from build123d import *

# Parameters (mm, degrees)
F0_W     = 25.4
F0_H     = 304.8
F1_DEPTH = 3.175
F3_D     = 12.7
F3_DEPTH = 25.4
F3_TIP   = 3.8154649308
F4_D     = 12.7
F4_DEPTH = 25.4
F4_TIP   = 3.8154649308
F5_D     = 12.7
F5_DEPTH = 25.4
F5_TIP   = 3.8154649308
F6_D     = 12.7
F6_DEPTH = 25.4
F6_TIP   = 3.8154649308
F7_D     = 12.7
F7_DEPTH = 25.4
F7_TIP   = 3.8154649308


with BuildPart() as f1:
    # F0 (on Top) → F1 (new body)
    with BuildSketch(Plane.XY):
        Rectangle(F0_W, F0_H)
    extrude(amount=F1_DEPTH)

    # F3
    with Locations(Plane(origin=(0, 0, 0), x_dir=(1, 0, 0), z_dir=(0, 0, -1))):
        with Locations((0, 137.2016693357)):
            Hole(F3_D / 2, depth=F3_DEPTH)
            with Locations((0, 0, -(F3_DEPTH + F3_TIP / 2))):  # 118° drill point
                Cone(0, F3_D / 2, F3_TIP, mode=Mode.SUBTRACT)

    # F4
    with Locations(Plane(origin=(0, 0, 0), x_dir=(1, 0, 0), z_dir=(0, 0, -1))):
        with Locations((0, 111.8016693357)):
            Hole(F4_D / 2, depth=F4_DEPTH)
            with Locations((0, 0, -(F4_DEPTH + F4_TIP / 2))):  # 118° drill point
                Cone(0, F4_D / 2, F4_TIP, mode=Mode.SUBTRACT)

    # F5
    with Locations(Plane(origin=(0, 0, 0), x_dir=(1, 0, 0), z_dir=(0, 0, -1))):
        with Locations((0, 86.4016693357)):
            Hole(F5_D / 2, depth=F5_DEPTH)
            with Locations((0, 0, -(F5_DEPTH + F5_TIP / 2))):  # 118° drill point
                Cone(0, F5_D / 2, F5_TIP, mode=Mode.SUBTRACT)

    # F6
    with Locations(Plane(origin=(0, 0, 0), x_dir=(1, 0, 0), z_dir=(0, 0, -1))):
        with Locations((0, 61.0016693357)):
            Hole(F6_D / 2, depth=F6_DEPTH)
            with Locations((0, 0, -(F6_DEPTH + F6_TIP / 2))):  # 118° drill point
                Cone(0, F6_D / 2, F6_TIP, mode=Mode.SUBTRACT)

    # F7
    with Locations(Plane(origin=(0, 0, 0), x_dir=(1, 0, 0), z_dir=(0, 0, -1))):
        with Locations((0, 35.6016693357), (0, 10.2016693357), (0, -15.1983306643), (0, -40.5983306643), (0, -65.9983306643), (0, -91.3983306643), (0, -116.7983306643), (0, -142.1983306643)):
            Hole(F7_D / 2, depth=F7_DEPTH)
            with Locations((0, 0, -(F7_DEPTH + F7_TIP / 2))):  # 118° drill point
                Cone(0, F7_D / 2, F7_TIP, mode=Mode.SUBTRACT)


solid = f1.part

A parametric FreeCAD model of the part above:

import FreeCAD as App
import Part
import Sketcher

V = App.Vector
Q = App.Units.Quantity

doc = App.newDocument("Part")
body = doc.addObject("PartDesign::Body", "Body")

# Sketch on XY plane
sketch1 = doc.addObject("Sketcher::SketchObject", "Sketch")
body.addObject(sketch1)
sketch1.AttachmentSupport = (doc.XY_Plane, [""])
sketch1.MapMode = "FlatFace"
sketch1.addGeometry(Part.LineSegment(V(-13, 152, 0), V(-13, -152, 0)), False)
sketch1.addGeometry(Part.LineSegment(V(-13, -152, 0), V(13, -152, 0)), False)
sketch1.addGeometry(Part.LineSegment(V(13, -152, 0), V(13, 152, 0)), False)
sketch1.addGeometry(Part.LineSegment(V(13, 152, 0), V(-13, 152, 0)), False)
sketch1.addConstraint(Sketcher.Constraint("Coincident", 0, 2, 1, 1))
sketch1.addConstraint(Sketcher.Constraint("Coincident", 1, 2, 2, 1))
sketch1.addConstraint(Sketcher.Constraint("Coincident", 2, 2, 3, 1))
sketch1.addConstraint(Sketcher.Constraint("Coincident", 3, 2, 0, 1))
sketch1.addConstraint(Sketcher.Constraint("Vertical", 0))
sketch1.addConstraint(Sketcher.Constraint("Horizontal", 1))
sketch1.addConstraint(Sketcher.Constraint("Vertical", 2))
sketch1.addConstraint(Sketcher.Constraint("Horizontal", 3))
sketch1.addConstraint(Sketcher.Constraint("Symmetric", 0, 2, 2, 2, -1, 1))
sketch1.addConstraint(Sketcher.Constraint("DistanceX", 1, 1, 1, 2, Q("1 in")))
sketch1.addConstraint(Sketcher.Constraint("DistanceY", 0, 2, 0, 1, Q("12 in")))
pad1 = doc.addObject("PartDesign::Pad", "Pad")
body.addObject(pad1)
pad1.Profile = sketch1
pad1.Length = Q("0.125 in")

# Sketch on XY plane
sketch2 = doc.addObject("Sketcher::SketchObject", "Sketch001")
body.addObject(sketch2)
sketch2.AttachmentSupport = (doc.XY_Plane, [""])
sketch2.MapMode = "FlatFace"
sketch2.addGeometry(Part.Circle(V(0, -137, 0), V(0, 0, 1), 6), False)
sketch2.addConstraint(Sketcher.Constraint("PointOnObject", 0, 3, -2))
sketch2.addConstraint(Sketcher.Constraint("Diameter", 0, Q("0.5 in")))
sketch2.addConstraint(Sketcher.Constraint("DistanceY", 0, 3, -1, 1, 137.201669))
doc.recompute()
hole = doc.addObject("PartDesign::Hole", "Hole")
body.addObject(hole)
hole.Profile = sketch2
hole.ThreadType = "None"
hole.Diameter = Q("0.5 in")
hole.DepthType = "Dimension"
hole.Depth = Q("1 in")
hole.DrillPoint = "Angled"
hole.DrillPointAngle = 118
hole.Reversed = True

# Sketch on XY plane
sketch3 = doc.addObject("Sketcher::SketchObject", "Sketch002")
body.addObject(sketch3)
sketch3.AttachmentSupport = (doc.XY_Plane, [""])
sketch3.MapMode = "FlatFace"
sketch3.addGeometry(Part.Circle(V(0, -112, 0), V(0, 0, 1), 6), False)
sketch3.addConstraint(Sketcher.Constraint("PointOnObject", 0, 3, -2))
sketch3.addConstraint(Sketcher.Constraint("Diameter", 0, Q("0.5 in")))
sketch3.addConstraint(Sketcher.Constraint("DistanceY", 0, 3, -1, 1, 111.801669))
doc.recompute()
hole2 = doc.addObject("PartDesign::Hole", "Hole001")
body.addObject(hole2)
hole2.Profile = sketch3
hole2.ThreadType = "None"
hole2.Diameter = Q("0.5 in")
hole2.DepthType = "Dimension"
hole2.Depth = Q("1 in")
hole2.DrillPoint = "Angled"
hole2.DrillPointAngle = 118
hole2.Reversed = True

# Sketch on XY plane
sketch4 = doc.addObject("Sketcher::SketchObject", "Sketch003")
body.addObject(sketch4)
sketch4.AttachmentSupport = (doc.XY_Plane, [""])
sketch4.MapMode = "FlatFace"
sketch4.addGeometry(Part.Circle(V(0, -86, 0), V(0, 0, 1), 6), False)
sketch4.addConstraint(Sketcher.Constraint("PointOnObject", 0, 3, -2))
sketch4.addConstraint(Sketcher.Constraint("Diameter", 0, Q("0.5 in")))
sketch4.addConstraint(Sketcher.Constraint("DistanceY", 0, 3, -1, 1, 86.401669))
doc.recompute()
hole3 = doc.addObject("PartDesign::Hole", "Hole002")
body.addObject(hole3)
hole3.Profile = sketch4
hole3.ThreadType = "None"
hole3.Diameter = Q("0.5 in")
hole3.DepthType = "Dimension"
hole3.Depth = Q("1 in")
hole3.DrillPoint = "Angled"
hole3.DrillPointAngle = 118
hole3.Reversed = True

# Sketch on XY plane
sketch5 = doc.addObject("Sketcher::SketchObject", "Sketch004")
body.addObject(sketch5)
sketch5.AttachmentSupport = (doc.XY_Plane, [""])
sketch5.MapMode = "FlatFace"
sketch5.addGeometry(Part.Circle(V(0, -61, 0), V(0, 0, 1), 6), False)
sketch5.addConstraint(Sketcher.Constraint("PointOnObject", 0, 3, -2))
sketch5.addConstraint(Sketcher.Constraint("Diameter", 0, Q("0.5 in")))
sketch5.addConstraint(Sketcher.Constraint("DistanceY", 0, 3, -1, 1, 61.001669))
doc.recompute()
hole4 = doc.addObject("PartDesign::Hole", "Hole003")
body.addObject(hole4)
hole4.Profile = sketch5
hole4.ThreadType = "None"
hole4.Diameter = Q("0.5 in")
hole4.DepthType = "Dimension"
hole4.Depth = Q("1 in")
hole4.DrillPoint = "Angled"
hole4.DrillPointAngle = 118
hole4.Reversed = True

# Sketch on XY plane
sketch6 = doc.addObject("Sketcher::SketchObject", "Sketch005")
body.addObject(sketch6)
sketch6.AttachmentSupport = (doc.XY_Plane, [""])
sketch6.MapMode = "FlatFace"
sketch6.addGeometry(Part.Circle(V(0, -36, 0), V(0, 0, 1), 6), False)
sketch6.addGeometry(Part.Circle(V(0, -10, 0), V(0, 0, 1), 6), False)
sketch6.addGeometry(Part.Circle(V(0, 15, 0), V(0, 0, 1), 6), False)
sketch6.addGeometry(Part.Circle(V(0, 41, 0), V(0, 0, 1), 6), False)
sketch6.addGeometry(Part.Circle(V(0, 66, 0), V(0, 0, 1), 6), False)
sketch6.addGeometry(Part.Circle(V(0, 91, 0), V(0, 0, 1), 6), False)
sketch6.addGeometry(Part.Circle(V(0, 117, 0), V(0, 0, 1), 6), False)
sketch6.addGeometry(Part.Circle(V(0, 142, 0), V(0, 0, 1), 6), False)
sketch6.addConstraint(Sketcher.Constraint("Equal", 0, 1))
sketch6.addConstraint(Sketcher.Constraint("Equal", 1, 2))
sketch6.addConstraint(Sketcher.Constraint("Equal", 2, 3))
sketch6.addConstraint(Sketcher.Constraint("Equal", 3, 4))
sketch6.addConstraint(Sketcher.Constraint("Equal", 4, 5))
sketch6.addConstraint(Sketcher.Constraint("Equal", 5, 6))
sketch6.addConstraint(Sketcher.Constraint("Equal", 6, 7))
sketch6.addConstraint(Sketcher.Constraint("PointOnObject", 0, 3, -2))
sketch6.addConstraint(Sketcher.Constraint("PointOnObject", 1, 3, -2))
sketch6.addConstraint(Sketcher.Constraint("PointOnObject", 2, 3, -2))
sketch6.addConstraint(Sketcher.Constraint("PointOnObject", 3, 3, -2))
sketch6.addConstraint(Sketcher.Constraint("PointOnObject", 4, 3, -2))
sketch6.addConstraint(Sketcher.Constraint("PointOnObject", 5, 3, -2))
sketch6.addConstraint(Sketcher.Constraint("PointOnObject", 6, 3, -2))
sketch6.addConstraint(Sketcher.Constraint("PointOnObject", 7, 3, -2))
sketch6.addConstraint(Sketcher.Constraint("Diameter", 0, Q("0.5 in")))
sketch6.addConstraint(Sketcher.Constraint("DistanceY", 0, 3, 1, 3, Q("1 in")))
sketch6.addConstraint(Sketcher.Constraint("DistanceY", 1, 3, 2, 3, Q("1 in")))
sketch6.addConstraint(Sketcher.Constraint("DistanceY", 2, 3, 3, 3, Q("1 in")))
sketch6.addConstraint(Sketcher.Constraint("DistanceY", 3, 3, 4, 3, Q("1 in")))
sketch6.addConstraint(Sketcher.Constraint("DistanceY", 4, 3, 5, 3, Q("1 in")))
sketch6.addConstraint(Sketcher.Constraint("DistanceY", 5, 3, 6, 3, Q("1 in")))
sketch6.addConstraint(Sketcher.Constraint("DistanceY", 6, 3, 7, 3, Q("1 in")))
sketch6.addConstraint(Sketcher.Constraint("DistanceY", 0, 3, -1, 1, 35.601669))
doc.recompute()
hole5 = doc.addObject("PartDesign::Hole", "Hole004")
body.addObject(hole5)
hole5.Profile = sketch6
hole5.ThreadType = "None"
hole5.Diameter = Q("0.5 in")
hole5.DepthType = "Dimension"
hole5.Depth = Q("1 in")
hole5.DrillPoint = "Angled"
hole5.DrillPointAngle = 118
hole5.Reversed = True

doc.recompute()
